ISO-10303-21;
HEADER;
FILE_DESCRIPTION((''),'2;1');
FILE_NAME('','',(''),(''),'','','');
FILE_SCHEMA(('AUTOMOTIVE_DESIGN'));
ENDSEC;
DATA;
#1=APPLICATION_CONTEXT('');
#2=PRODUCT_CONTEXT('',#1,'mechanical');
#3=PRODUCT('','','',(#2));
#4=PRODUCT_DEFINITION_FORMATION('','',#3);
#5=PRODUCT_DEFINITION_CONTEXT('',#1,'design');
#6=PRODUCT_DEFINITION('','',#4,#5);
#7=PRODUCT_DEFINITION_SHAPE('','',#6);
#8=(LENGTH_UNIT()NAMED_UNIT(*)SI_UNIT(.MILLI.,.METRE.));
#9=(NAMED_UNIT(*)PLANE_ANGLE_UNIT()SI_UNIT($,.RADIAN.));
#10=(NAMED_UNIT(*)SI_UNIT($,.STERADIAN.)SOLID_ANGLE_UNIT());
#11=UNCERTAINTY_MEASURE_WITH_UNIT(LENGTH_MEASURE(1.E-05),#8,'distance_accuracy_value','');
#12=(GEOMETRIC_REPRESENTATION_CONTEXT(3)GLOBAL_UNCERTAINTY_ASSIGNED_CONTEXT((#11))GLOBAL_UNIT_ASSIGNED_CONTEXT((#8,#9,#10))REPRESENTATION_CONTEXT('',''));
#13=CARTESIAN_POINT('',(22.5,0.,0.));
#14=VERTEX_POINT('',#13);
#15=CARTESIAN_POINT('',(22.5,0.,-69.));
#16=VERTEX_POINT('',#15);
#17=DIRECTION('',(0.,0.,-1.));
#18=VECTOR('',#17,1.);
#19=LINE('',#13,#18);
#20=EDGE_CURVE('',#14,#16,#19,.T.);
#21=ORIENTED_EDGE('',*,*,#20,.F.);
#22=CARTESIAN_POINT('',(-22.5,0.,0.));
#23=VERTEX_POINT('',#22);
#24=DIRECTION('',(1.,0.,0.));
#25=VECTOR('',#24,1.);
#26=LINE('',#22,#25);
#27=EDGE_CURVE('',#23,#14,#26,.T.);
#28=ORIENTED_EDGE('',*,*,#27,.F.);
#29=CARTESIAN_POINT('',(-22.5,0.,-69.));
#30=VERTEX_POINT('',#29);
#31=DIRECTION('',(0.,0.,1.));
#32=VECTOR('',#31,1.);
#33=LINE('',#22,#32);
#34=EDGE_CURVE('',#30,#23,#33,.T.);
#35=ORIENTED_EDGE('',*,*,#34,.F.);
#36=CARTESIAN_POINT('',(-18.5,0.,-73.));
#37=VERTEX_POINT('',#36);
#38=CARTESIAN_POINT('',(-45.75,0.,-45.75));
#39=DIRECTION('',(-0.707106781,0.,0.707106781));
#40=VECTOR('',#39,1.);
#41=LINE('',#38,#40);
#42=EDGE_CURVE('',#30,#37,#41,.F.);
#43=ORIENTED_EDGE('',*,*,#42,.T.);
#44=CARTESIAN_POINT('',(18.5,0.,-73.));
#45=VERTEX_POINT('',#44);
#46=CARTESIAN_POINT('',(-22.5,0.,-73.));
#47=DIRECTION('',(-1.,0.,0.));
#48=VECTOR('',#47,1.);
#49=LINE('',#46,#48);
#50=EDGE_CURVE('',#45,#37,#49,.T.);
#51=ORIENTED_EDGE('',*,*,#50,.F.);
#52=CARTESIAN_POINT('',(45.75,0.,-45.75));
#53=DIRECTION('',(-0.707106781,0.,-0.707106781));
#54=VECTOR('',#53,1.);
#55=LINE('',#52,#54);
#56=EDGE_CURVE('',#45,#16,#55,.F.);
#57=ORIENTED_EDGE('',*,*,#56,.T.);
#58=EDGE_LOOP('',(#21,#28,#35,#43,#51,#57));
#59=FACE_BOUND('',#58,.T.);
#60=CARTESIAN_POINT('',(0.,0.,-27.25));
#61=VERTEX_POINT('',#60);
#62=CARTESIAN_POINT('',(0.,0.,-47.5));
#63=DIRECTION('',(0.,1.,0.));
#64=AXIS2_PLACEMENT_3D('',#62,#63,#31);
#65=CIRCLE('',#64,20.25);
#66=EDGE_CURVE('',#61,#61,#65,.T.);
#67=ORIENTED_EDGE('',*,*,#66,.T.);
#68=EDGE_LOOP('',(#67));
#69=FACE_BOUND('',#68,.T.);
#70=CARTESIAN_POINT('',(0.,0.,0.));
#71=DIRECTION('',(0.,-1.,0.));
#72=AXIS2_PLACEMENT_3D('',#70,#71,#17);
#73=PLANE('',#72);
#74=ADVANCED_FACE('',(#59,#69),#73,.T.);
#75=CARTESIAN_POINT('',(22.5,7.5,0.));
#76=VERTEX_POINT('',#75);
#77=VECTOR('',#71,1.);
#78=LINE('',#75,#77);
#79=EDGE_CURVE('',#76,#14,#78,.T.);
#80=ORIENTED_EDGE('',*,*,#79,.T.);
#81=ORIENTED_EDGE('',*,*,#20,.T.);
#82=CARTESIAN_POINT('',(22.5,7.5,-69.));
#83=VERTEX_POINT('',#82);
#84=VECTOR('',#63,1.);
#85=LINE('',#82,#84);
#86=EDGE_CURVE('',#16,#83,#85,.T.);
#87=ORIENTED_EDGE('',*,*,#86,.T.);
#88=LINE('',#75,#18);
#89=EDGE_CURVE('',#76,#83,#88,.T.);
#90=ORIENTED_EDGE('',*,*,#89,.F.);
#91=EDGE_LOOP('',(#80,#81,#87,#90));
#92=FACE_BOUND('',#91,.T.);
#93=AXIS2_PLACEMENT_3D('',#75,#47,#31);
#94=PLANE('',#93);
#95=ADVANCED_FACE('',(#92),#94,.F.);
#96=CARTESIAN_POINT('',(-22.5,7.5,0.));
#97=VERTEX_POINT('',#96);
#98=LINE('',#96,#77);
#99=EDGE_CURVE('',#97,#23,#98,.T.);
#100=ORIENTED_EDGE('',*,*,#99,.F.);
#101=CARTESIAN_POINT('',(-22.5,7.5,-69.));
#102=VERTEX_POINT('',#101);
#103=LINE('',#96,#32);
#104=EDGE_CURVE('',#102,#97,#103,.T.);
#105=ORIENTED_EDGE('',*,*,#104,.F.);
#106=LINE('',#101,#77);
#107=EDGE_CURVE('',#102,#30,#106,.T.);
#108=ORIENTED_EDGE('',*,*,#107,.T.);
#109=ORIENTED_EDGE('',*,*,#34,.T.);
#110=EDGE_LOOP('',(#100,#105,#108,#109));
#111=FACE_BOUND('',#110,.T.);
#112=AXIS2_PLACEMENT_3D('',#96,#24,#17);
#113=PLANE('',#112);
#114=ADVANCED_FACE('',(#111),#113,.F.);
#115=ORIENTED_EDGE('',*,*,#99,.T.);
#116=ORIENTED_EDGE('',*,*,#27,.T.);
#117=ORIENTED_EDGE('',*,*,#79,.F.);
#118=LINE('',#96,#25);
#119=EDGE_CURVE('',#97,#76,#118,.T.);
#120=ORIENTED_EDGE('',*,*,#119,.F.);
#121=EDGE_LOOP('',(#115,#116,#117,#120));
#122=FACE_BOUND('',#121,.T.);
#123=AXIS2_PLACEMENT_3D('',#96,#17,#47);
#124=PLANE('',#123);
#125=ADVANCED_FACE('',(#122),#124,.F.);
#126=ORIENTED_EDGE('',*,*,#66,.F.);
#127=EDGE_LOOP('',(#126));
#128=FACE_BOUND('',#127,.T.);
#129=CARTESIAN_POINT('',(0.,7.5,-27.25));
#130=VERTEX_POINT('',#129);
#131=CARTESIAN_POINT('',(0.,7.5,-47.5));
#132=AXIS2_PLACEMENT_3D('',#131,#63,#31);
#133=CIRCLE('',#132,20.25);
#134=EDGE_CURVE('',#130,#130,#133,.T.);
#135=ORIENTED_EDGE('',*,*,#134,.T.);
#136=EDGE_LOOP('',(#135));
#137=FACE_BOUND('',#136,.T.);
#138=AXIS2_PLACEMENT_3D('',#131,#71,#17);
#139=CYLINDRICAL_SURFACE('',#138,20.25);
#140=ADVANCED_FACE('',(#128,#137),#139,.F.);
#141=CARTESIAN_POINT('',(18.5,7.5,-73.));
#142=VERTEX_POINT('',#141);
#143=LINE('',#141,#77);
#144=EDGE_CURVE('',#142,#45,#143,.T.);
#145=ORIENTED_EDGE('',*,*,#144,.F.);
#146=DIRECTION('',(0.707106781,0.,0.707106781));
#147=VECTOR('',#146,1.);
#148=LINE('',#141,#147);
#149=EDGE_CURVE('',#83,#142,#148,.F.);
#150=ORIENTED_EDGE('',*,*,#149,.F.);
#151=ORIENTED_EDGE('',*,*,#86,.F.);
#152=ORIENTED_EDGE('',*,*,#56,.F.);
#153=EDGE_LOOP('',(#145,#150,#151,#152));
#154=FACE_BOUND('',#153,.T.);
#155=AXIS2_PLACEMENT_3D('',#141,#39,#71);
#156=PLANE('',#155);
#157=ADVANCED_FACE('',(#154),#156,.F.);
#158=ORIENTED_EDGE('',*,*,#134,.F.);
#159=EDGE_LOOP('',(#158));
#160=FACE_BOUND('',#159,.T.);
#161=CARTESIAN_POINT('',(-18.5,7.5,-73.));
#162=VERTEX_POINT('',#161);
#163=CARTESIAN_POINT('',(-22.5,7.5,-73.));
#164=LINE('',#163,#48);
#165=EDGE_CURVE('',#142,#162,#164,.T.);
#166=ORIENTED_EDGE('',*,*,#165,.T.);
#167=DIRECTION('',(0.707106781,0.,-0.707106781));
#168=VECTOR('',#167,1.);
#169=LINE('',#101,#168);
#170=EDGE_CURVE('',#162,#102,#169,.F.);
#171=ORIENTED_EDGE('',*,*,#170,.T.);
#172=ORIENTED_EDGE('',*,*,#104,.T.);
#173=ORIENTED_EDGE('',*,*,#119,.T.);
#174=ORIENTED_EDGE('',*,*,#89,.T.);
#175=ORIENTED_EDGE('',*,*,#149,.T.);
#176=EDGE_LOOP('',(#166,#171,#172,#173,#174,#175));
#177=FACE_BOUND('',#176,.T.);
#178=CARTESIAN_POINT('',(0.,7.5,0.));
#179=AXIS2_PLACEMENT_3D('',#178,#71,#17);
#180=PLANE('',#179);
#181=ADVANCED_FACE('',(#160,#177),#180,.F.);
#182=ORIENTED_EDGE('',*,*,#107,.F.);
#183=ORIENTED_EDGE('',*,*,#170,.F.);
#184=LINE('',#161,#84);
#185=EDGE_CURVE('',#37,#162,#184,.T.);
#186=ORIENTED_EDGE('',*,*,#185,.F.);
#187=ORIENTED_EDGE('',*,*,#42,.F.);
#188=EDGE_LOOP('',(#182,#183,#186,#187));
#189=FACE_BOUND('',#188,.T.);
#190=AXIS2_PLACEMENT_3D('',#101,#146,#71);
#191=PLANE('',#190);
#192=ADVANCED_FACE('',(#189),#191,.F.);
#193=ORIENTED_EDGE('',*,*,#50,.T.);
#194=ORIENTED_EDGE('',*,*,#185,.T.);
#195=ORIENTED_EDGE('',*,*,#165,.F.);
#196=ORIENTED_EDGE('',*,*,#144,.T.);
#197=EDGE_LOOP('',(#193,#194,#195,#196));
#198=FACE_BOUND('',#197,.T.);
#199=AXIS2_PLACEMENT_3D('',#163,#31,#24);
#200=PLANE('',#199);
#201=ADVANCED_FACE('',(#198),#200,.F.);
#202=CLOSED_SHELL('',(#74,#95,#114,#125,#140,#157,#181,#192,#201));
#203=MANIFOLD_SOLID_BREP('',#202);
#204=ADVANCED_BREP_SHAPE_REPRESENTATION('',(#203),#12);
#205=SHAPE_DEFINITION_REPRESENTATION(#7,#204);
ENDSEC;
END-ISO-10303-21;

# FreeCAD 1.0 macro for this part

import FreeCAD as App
import Part
import Sketcher


def edges_at(feature, points):
    """Names of the edges that pass closest to the given points."""
    edges = feature.Shape.Edges
    near = lambda p: min(range(len(edges)), key=lambda i: edges[i].distToShape(Part.Vertex(*p))[0])
    return sorted({f"Edge{near(p) + 1}" for p in points})

doc = App.newDocument("Part")
body = doc.addObject("PartDesign::Body", "Body")

# Sketch on XZ plane
sketch1 = body.newObject("Sketcher::SketchObject", "Sketch")
sketch1.AttachmentSupport = (doc.getObject("XZ_Plane"), [""])
sketch1.MapMode = "FlatFace"
sketch1.addGeometry([
    Part.LineSegment(App.Vector(-22, -73, 0), App.Vector(-22, 0, 0)),  # 0
    Part.LineSegment(App.Vector(-22, 0, 0), App.Vector(22, 0, 0)),  # 1
    Part.LineSegment(App.Vector(22, 0, 0), App.Vector(22, -73, 0)),  # 2
    Part.LineSegment(App.Vector(22, -73, 0), App.Vector(-22, -73, 0)),  # 3
    Part.Circle(App.Vector(0, -48, 0), App.Vector(0, 0, 1), 20),  # 4
], False)
sketch1.addConstraint([
    Sketcher.Constraint("Coincident", 0, 2, 1, 1),
    Sketcher.Constraint("Coincident", 1, 2, 2, 1),
    Sketcher.Constraint("Coincident", 2, 2, 3, 1),
    Sketcher.Constraint("Coincident", 3, 2, 0, 1),
    Sketcher.Constraint("Vertical", 0),
    Sketcher.Constraint("Horizontal", 1),
    Sketcher.Constraint("Vertical", 2),
    Sketcher.Constraint("Horizontal", 3),
    Sketcher.Constraint("Symmetric", 0, 2, 1, 2, -1, 1),
    Sketcher.Constraint("PointOnObject", 4, 3, -2),
    Sketcher.Constraint("Diameter", 4, 40.5),
    Sketcher.Constraint("DistanceX", 1, 1, 1, 2, 45.0),
    Sketcher.Constraint("DistanceY", 0, 1, 0, 2, 73.0),
    Sketcher.Constraint("DistanceY", 4, 3, -1, 1, 47.5),
])
pad1 = body.newObject("PartDesign::Pad", "Pad")
pad1.Profile = sketch1
pad1.Length = 7.5
pad1.Reversed = True
doc.recompute()

chamfer = body.newObject("PartDesign::Chamfer", "Chamfer")
chamfer.Base = (pad1, edges_at(pad1, [(-22.5, 3.75, -73), (22.5, 3.75, -73)]))
chamfer.Size = 4

doc.recompute()
